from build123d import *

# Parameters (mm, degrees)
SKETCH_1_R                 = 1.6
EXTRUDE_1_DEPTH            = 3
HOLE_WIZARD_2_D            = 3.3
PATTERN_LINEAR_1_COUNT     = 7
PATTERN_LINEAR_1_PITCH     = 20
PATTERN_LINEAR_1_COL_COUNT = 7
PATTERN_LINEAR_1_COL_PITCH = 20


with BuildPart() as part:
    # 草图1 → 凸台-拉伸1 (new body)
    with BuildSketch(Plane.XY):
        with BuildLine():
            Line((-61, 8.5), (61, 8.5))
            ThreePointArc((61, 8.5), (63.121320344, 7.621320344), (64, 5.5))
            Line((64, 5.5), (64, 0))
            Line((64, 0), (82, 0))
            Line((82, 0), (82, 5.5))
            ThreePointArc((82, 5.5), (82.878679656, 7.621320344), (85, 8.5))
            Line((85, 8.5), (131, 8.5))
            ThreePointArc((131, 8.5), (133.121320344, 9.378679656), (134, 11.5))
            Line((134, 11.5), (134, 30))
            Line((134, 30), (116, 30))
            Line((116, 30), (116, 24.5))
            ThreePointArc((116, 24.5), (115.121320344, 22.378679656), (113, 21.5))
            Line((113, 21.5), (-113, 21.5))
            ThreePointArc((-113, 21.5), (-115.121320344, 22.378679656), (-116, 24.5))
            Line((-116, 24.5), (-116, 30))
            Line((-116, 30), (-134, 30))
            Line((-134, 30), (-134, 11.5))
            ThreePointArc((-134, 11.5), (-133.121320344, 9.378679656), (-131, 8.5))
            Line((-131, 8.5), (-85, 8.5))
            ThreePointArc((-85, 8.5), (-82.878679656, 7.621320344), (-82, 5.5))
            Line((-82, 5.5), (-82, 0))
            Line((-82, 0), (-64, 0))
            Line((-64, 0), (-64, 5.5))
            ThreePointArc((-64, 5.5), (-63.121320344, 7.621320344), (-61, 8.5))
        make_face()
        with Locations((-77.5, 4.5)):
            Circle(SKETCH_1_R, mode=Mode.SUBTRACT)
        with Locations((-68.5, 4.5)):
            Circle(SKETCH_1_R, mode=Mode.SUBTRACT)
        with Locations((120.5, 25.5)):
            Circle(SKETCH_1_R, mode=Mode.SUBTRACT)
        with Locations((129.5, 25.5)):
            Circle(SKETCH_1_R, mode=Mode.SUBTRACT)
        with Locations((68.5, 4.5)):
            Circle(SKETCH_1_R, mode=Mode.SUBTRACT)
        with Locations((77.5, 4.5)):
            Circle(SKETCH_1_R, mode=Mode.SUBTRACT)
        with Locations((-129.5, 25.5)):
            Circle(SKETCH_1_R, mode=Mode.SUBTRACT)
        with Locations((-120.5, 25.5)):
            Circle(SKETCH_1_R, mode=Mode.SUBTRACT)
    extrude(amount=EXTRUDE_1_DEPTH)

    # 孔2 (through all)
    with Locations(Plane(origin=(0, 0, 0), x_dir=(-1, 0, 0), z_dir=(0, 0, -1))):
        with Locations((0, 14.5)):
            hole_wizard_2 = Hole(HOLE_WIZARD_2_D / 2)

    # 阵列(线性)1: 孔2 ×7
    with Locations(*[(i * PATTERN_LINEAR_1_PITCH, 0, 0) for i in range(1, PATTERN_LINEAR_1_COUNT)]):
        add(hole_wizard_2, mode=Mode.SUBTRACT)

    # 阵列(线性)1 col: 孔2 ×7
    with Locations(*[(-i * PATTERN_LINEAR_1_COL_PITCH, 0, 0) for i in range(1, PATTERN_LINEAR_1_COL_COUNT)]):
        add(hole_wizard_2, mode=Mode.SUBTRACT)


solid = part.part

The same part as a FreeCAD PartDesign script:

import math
import FreeCAD as App
import Part
import Sketcher

V = App.Vector

doc = App.newDocument("Part")
body = doc.addObject("PartDesign::Body", "Body")

sketch1 = doc.addObject("Sketcher::SketchObject", "Sketch")
body.addObject(sketch1)
sketch1.AttachmentSupport = (doc.XY_Plane, [""])
sketch1.MapMode = "FlatFace"
sketch1.addGeometry([
    Part.LineSegment(V(-61, 8.5, 0), V(61, 8.5, 0)),
    Part.ArcOfCircle(Part.Circle(V(61, 5.5, 0), V(0, 0, 1), 3), math.radians(0), math.radians(90)),
    Part.LineSegment(V(64, 5.5, 0), V(64, 0, 0)),
    Part.LineSegment(V(64, 0, 0), V(82, 0, 0)),
    Part.LineSegment(V(82, 0, 0), V(82, 5.5, 0)),
    Part.ArcOfCircle(Part.Circle(V(85, 5.5, 0), V(0, 0, 1), 3), math.radians(90), math.radians(180)),
    Part.LineSegment(V(85, 8.5, 0), V(131, 8.5, 0)),
    Part.ArcOfCircle(Part.Circle(V(131, 11.5, 0), V(0, 0, 1), 3), math.radians(-90), math.radians(0)),
    Part.LineSegment(V(134, 11.5, 0), V(134, 30, 0)),
    Part.LineSegment(V(134, 30, 0), V(116, 30, 0)),
    Part.LineSegment(V(116, 30, 0), V(116, 24.5, 0)),
    Part.ArcOfCircle(Part.Circle(V(113, 24.5, 0), V(0, 0, 1), 3), math.radians(-90), math.radians(0)),
    Part.LineSegment(V(113, 21.5, 0), V(-113, 21.5, 0)),
    Part.ArcOfCircle(Part.Circle(V(-113, 24.5, 0), V(0, 0, 1), 3), math.radians(180), math.radians(270)),
    Part.LineSegment(V(-116, 24.5, 0), V(-116, 30, 0)),
    Part.LineSegment(V(-116, 30, 0), V(-134, 30, 0)),
    Part.LineSegment(V(-134, 30, 0), V(-134, 11.5, 0)),
    Part.ArcOfCircle(Part.Circle(V(-131, 11.5, 0), V(0, 0, 1), 3), math.radians(180), math.radians(270)),
    Part.LineSegment(V(-131, 8.5, 0), V(-85, 8.5, 0)),
    Part.ArcOfCircle(Part.Circle(V(-85, 5.5, 0), V(0, 0, 1), 3), math.radians(0), math.radians(90)),
    Part.LineSegment(V(-82, 5.5, 0), V(-82, 0, 0)),
    Part.LineSegment(V(-82, 0, 0), V(-64, 0, 0)),
    Part.LineSegment(V(-64, 0, 0), V(-64, 5.5, 0)),
    Part.ArcOfCircle(Part.Circle(V(-61, 5.5, 0), V(0, 0, 1), 3), math.radians(90), math.radians(180)),
    Part.Circle(V(-77.5, 4.5, 0), V(0, 0, 1), 1.6),
    Part.Circle(V(-68.5, 4.5, 0), V(0, 0, 1), 1.6),
    Part.Circle(V(68.5, 4.5, 0), V(0, 0, 1), 1.6),
    Part.Circle(V(77.5, 4.5, 0), V(0, 0, 1), 1.6),
    Part.Circle(V(-129.5, 25.5, 0), V(0, 0, 1), 1.6),
    Part.Circle(V(-120.5, 25.5, 0), V(0, 0, 1), 1.6),
    Part.Circle(V(120.5, 25.5, 0), V(0, 0, 1), 1.6),
    Part.Circle(V(129.5, 25.5, 0), V(0, 0, 1), 1.6),
], False)
sketch1.addConstraint([
    Sketcher.Constraint("Tangent", 0, 2, 1, 2),
    Sketcher.Constraint("Tangent", 1, 1, 2, 1),
    Sketcher.Constraint("Coincident", 2, 2, 3, 1),
    Sketcher.Constraint("Coincident", 3, 2, 4, 1),
    Sketcher.Constraint("Tangent", 4, 2, 5, 2),
    Sketcher.Constraint("Tangent", 5, 1, 6, 1),
    Sketcher.Constraint("Tangent", 6, 2, 7, 1),
    Sketcher.Constraint("Tangent", 7, 2, 8, 1),
    Sketcher.Constraint("Coincident", 8, 2, 9, 1),
    Sketcher.Constraint("Coincident", 9, 2, 10, 1),
    Sketcher.Constraint("Tangent", 10, 2, 11, 2),
    Sketcher.Constraint("Tangent", 11, 1, 12, 1),
    Sketcher.Constraint("Tangent", 12, 2, 13, 2),
    Sketcher.Constraint("Tangent", 13, 1, 14, 1),
    Sketcher.Constraint("Coincident", 14, 2, 15, 1),
    Sketcher.Constraint("Coincident", 15, 2, 16, 1),
    Sketcher.Constraint("Tangent", 16, 2, 17, 1),
    Sketcher.Constraint("Tangent", 17, 2, 18, 1),
    Sketcher.Constraint("Tangent", 18, 2, 19, 2),
    Sketcher.Constraint("Tangent", 19, 1, 20, 1),
    Sketcher.Constraint("Coincident", 20, 2, 21, 1),
    Sketcher.Constraint("Coincident", 21, 2, 22, 1),
    Sketcher.Constraint("Tangent", 22, 2, 23, 2),
    Sketcher.Constraint("Tangent", 23, 1, 0, 1),
    Sketcher.Constraint("Horizontal", 0),
    Sketcher.Constraint("Vertical", 2),
    Sketcher.Constraint("Horizontal", 3),
    Sketcher.Constraint("Vertical", 4),
    Sketcher.Constraint("Horizontal", 6),
    Sketcher.Constraint("Vertical", 8),
    Sketcher.Constraint("Horizontal", 9),
    Sketcher.Constraint("Vertical", 10),
    Sketcher.Constraint("Horizontal", 12),
    Sketcher.Constraint("Vertical", 14),
    Sketcher.Constraint("Horizontal", 15),
    Sketcher.Constraint("Vertical", 16),
    Sketcher.Constraint("Horizontal", 18),
    Sketcher.Constraint("Vertical", 20),
    Sketcher.Constraint("Horizontal", 21),
    Sketcher.Constraint("Vertical", 22),
    Sketcher.Constraint("Equal", 1, 5),
    Sketcher.Constraint("Equal", 5, 7),
    Sketcher.Constraint("Equal", 7, 11),
    Sketcher.Constraint("Equal", 11, 13),
    Sketcher.Constraint("Equal", 13, 17),
    Sketcher.Constraint("Equal", 17, 19),
    Sketcher.Constraint("Equal", 19, 23),
    Sketcher.Constraint("Equal", 24, 25),
    Sketcher.Constraint("Equal", 25, 26),
    Sketcher.Constraint("Equal", 26, 27),
    Sketcher.Constraint("Equal", 27, 28),
    Sketcher.Constraint("Equal", 28, 29),
    Sketcher.Constraint("Equal", 29, 30),
    Sketcher.Constraint("Equal", 30, 31),
    Sketcher.Constraint("Symmetric", 3, 2, 20, 2, -1, 1),
    Sketcher.Constraint("Symmetric", 7, 3, 17, 3, -2),
    Sketcher.Constraint("Symmetric", 25, 3, 26, 3, -2),
    Sketcher.Constraint("Symmetric", 24, 3, 27, 3, -2),
    Sketcher.Constraint("Symmetric", 29, 3, 30, 3, -2),
    Sketcher.Constraint("Symmetric", 28, 3, 31, 3, -2),
    Sketcher.Constraint("Symmetric", 9, 2, 14, 2, -2),
    Sketcher.Constraint("Symmetric", 2, 2, 21, 2, -2),
    Sketcher.Constraint("Horizontal", 1, 3, 5, 3),
    Sketcher.Constraint("Horizontal", 24, 3, 25, 3),
    Sketcher.Constraint("Horizontal", 28, 3, 29, 3),
    Sketcher.Constraint("Equal", 3, 9),
    Sketcher.Constraint("Equal", 4, 10),
    Sketcher.Constraint("Radius", 1, 3.0),
    Sketcher.Constraint("Diameter", 24, 3.2),
    Sketcher.Constraint("DistanceX", 0, 1, 0, 2, 122.0),
    Sketcher.Constraint("DistanceX", 3, 1, 3, 2, 18.0),
    Sketcher.Constraint("DistanceX", 6, 1, 6, 2, 46.0),
    Sketcher.Constraint("DistanceY", 2, 2, 2, 1, 5.5),
    Sketcher.Constraint("DistanceY", 8, 1, 8, 2, 18.5),
    Sketcher.Constraint("DistanceY", 24, 3, 19, 3, 1.0),
    Sketcher.Constraint("DistanceX", 24, 3, 25, 3, 9.0),
    Sketcher.Constraint("DistanceY", 17, 3, 28, 3, 14.0),
    Sketcher.Constraint("DistanceX", 28, 3, 24, 3, 52.0),
    Sketcher.Constraint("DistanceX", 28, 3, 29, 3, 9.0),
    Sketcher.Constraint("DistanceX", 24, 3, -1, 1, 77.5),
])
pad1 = doc.addObject("PartDesign::Pad", "Pad")
body.addObject(pad1)
pad1.Profile = sketch1
pad1.Length = 3

sketch2 = doc.addObject("Sketcher::SketchObject", "Sketch001")
body.addObject(sketch2)
sketch2.AttachmentSupport = (doc.XY_Plane, [""])
sketch2.MapMode = "FlatFace"
sketch2.addGeometry(Part.Circle(V(0, 14.5, 0), V(0, 0, 1), 1.65), False)
sketch2.addConstraint([
    Sketcher.Constraint("PointOnObject", 0, 3, -2),
    Sketcher.Constraint("Diameter", 0, 3.3),
    Sketcher.Constraint("DistanceY", -1, 1, 0, 3, 14.5),
])
doc.recompute()
hole = doc.addObject("PartDesign::Hole", "Hole")
body.addObject(hole)
hole.Profile = sketch2
hole.ThreadType = "None"
hole.Diameter = 3.3
hole.DepthType = "ThroughAll"
hole.Reversed = True
doc.recompute()

linearpattern = doc.addObject("PartDesign::LinearPattern", "LinearPattern")
body.addObject(linearpattern)
linearpattern.Originals = [hole]
linearpattern.Direction = (doc.X_Axis, [""])
linearpattern.Mode = "offset"
linearpattern.Offset = 20
linearpattern.Occurrences = 7
body.Tip = linearpattern
doc.recompute()

linearpattern2 = doc.addObject("PartDesign::LinearPattern", "LinearPattern001")
body.addObject(linearpattern2)
linearpattern2.Originals = [hole]
linearpattern2.Direction = (doc.X_Axis, [""])
linearpattern2.Mode = "offset"
linearpattern2.Offset = 20
linearpattern2.Occurrences = 7
linearpattern2.Reversed = True
body.Tip = linearpattern2

doc.recompute()
